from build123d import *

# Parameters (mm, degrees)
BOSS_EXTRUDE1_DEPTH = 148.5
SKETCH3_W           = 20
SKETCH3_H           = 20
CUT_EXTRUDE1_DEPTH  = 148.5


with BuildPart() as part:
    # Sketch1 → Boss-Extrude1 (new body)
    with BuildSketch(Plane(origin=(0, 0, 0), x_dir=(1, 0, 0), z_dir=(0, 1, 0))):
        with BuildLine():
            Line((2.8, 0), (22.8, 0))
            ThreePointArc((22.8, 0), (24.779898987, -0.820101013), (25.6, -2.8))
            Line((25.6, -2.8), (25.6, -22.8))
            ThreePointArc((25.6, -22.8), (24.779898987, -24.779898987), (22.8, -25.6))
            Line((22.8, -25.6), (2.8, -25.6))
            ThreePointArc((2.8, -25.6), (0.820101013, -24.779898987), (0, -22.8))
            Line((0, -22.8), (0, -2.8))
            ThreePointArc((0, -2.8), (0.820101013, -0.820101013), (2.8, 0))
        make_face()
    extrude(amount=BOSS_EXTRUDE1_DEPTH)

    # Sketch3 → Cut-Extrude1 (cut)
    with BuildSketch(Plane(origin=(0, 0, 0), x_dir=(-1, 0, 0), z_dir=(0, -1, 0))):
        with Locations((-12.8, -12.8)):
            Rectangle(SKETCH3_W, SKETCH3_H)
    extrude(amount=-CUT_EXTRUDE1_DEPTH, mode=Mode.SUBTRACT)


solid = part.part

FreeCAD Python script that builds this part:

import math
import FreeCAD as App
import Part
import Sketcher

V = App.Vector

doc = App.newDocument("Part")
params = doc.addObject("Spreadsheet::Sheet", "Params")
for row, (alias, value) in enumerate([
    ("sketch1_radius", "2.8 mm"),
    ("sketch1_width", "20 mm"),
    ("pad1_length", "148.5 mm"),
    ("sketch2_width", "20 mm"),
    ("pocket1_length", "148.5 mm"),
], start=1):
    params.set(f"A{row}", alias)
    params.set(f"B{row}", "=" + value)
    params.setAlias(f"B{row}", alias)

body = doc.addObject("PartDesign::Body", "Body")

# Sketch on XZ plane
sketch1 = doc.addObject("Sketcher::SketchObject", "Sketch")
body.addObject(sketch1)
sketch1.AttachmentSupport = (doc.XZ_Plane, [""])
sketch1.MapMode = "FlatFace"
sketch1.addGeometry([
    Part.LineSegment(V(22.8, 0, 0), V(2.8, 0, 0)),  # 0
    Part.ArcOfCircle(Part.Circle(V(2.8, 2.8, 0), V(0, 0, 1), 2.8), math.radians(-180), math.radians(-90)),  # 1
    Part.LineSegment(V(0, 2.8, 0), V(0, 22.8, 0)),  # 2
    Part.ArcOfCircle(Part.Circle(V(2.8, 22.8, 0), V(0, 0, 1), 2.8), math.radians(90), math.radians(180)),  # 3
    Part.LineSegment(V(2.8, 25.6, 0), V(22.8, 25.6, 0)),  # 4
    Part.ArcOfCircle(Part.Circle(V(22.8, 22.8, 0), V(0, 0, 1), 2.8), math.radians(0), math.radians(90)),  # 5
    Part.LineSegment(V(25.6, 22.8, 0), V(25.6, 2.8, 0)),  # 6
    Part.ArcOfCircle(Part.Circle(V(22.8, 2.8, 0), V(0, 0, 1), 2.8), math.radians(-90), math.radians(0)),  # 7
], False)
sketch1.addConstraint([
    Sketcher.Constraint("Tangent", 0, 2, 1, 2),
    Sketcher.Constraint("Tangent", 1, 1, 2, 1),
    Sketcher.Constraint("Tangent", 2, 2, 3, 2),
    Sketcher.Constraint("Tangent", 3, 1, 4, 1),
    Sketcher.Constraint("Tangent", 4, 2, 5, 2),
    Sketcher.Constraint("Tangent", 5, 1, 6, 1),
    Sketcher.Constraint("Tangent", 6, 2, 7, 2),
    Sketcher.Constraint("Tangent", 7, 1, 0, 1),
    Sketcher.Constraint("Horizontal", 0),
    Sketcher.Constraint("Vertical", 2),
    Sketcher.Constraint("Horizontal", 4),
    Sketcher.Constraint("Vertical", 6),
    Sketcher.Constraint("Equal", 1, 3),
    Sketcher.Constraint("Equal", 3, 5),
    Sketcher.Constraint("Equal", 5, 7),
    Sketcher.Constraint("PointOnObject", 0, 2, -1),
    Sketcher.Constraint("PointOnObject", 1, 1, -2),
    Sketcher.Constraint("Equal", 4, 2),
    Sketcher.Constraint("Radius", 1, 2.8),
    Sketcher.Constraint("DistanceX", 0, 2, 0, 1, 20.0),
])
sketch1.setExpression("Constraints[18]", "Params.sketch1_radius")
sketch1.setExpression("Constraints[19]", "Params.sketch1_width")
pad1 = doc.addObject("PartDesign::Pad", "Pad")
body.addObject(pad1)
pad1.Profile = sketch1
pad1.setExpression("Length", "Params.pad1_length")
pad1.Reversed = True

# Sketch on XZ plane
sketch2 = doc.addObject("Sketcher::SketchObject", "Sketch001")
body.addObject(sketch2)
sketch2.AttachmentSupport = (doc.XZ_Plane, [""])
sketch2.MapMode = "FlatFace"
sketch2.addGeometry([
    Part.LineSegment(V(22.8, 2.8, 0), V(22.8, 22.8, 0)),
    Part.LineSegment(V(22.8, 22.8, 0), V(2.8, 22.8, 0)),
    Part.LineSegment(V(2.8, 22.8, 0), V(2.8, 2.8, 0)),
    Part.LineSegment(V(2.8, 2.8, 0), V(22.8, 2.8, 0)),
], False)
sketch2.addConstraint([
    Sketcher.Constraint("Coincident", 0, 2, 1, 1),
    Sketcher.Constraint("Coincident", 1, 2, 2, 1),
    Sketcher.Constraint("Coincident", 2, 2, 3, 1),
    Sketcher.Constraint("Coincident", 3, 2, 0, 1),
    Sketcher.Constraint("Vertical", 0),
    Sketcher.Constraint("Horizontal", 1),
    Sketcher.Constraint("Vertical", 2),
    Sketcher.Constraint("Horizontal", 3),
    Sketcher.Constraint("Equal", 3, 0),
    Sketcher.Constraint("DistanceX", 1, 2, 1, 1, 20.0),
    Sketcher.Constraint("DistanceX", -1, 1, 0, 2, 22.8),
    Sketcher.Constraint("DistanceY", -1, 1, 0, 2, 22.8),
])
sketch2.setExpression("Constraints[9]", "Params.sketch2_width")
pocket1 = doc.addObject("PartDesign::Pocket", "Pocket")
body.addObject(pocket1)
pocket1.Profile = sketch2
pocket1.setExpression("Length", "Params.pocket1_length")

doc.recompute()
